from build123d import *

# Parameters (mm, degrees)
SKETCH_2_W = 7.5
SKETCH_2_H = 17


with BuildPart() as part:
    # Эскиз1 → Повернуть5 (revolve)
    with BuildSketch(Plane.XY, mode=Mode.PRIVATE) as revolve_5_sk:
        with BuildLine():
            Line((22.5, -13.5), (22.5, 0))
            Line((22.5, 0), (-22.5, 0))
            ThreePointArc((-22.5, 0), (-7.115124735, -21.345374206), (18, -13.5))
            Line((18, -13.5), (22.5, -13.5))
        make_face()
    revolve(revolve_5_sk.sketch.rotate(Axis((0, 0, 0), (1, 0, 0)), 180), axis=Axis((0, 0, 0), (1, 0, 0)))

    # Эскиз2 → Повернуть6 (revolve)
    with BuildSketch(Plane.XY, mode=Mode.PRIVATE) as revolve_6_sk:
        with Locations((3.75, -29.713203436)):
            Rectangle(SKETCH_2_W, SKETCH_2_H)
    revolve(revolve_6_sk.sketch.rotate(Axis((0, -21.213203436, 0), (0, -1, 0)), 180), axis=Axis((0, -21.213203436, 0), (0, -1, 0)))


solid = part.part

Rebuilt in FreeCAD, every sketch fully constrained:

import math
import FreeCAD as App
import Part
import Sketcher


def add_polygon(sketch, points):
    """Adds a closed chain of lines whose ends are joined by coincident constraints."""
    first, n = sketch.GeometryCount, len(points)
    for a, b in zip(points, points[1:] + points[:1]):
        sketch.addGeometry(Part.LineSegment(App.Vector(*a, 0), App.Vector(*b, 0)), False)
    for i in range(n):
        sketch.addConstraint(Sketcher.Constraint("Coincident", first + i, 2, first + (i + 1) % n, 1))

doc = App.newDocument("Part")
body = doc.addObject("PartDesign::Body", "Body")

# Sketch on XY plane
sketch1 = body.newObject("Sketcher::SketchObject", "Sketch")
sketch1.AttachmentSupport = (doc.getObject("XY_Plane"), [""])
sketch1.MapMode = "FlatFace"
sketch1.addGeometry([
    Part.LineSegment(App.Vector(22.5, -13.5, 0), App.Vector(22.5, 0, 0)),
    Part.LineSegment(App.Vector(22.5, 0, 0), App.Vector(-22.5, 0, 0)),
    Part.ArcOfCircle(Part.Circle(App.Vector(0, 0, 0), App.Vector(0, 0, 1), 22.5), math.radians(180), math.radians(323)),
    Part.LineSegment(App.Vector(18, -13.5, 0), App.Vector(22.5, -13.5, 0)),
], False)
sketch1.addConstraint([
    Sketcher.Constraint("Coincident", 0, 2, 1, 1),
    Sketcher.Constraint("Coincident", 1, 2, 2, 1),
    Sketcher.Constraint("Coincident", 2, 2, 3, 1),
    Sketcher.Constraint("Coincident", 3, 2, 0, 1),
    Sketcher.Constraint("Vertical", 0),
    Sketcher.Constraint("Horizontal", 1),
    Sketcher.Constraint("Horizontal", 3),
    Sketcher.Constraint("Coincident", 2, 3, -1, 1),
    Sketcher.Constraint("Symmetric", 0, 2, 1, 2, -1, 1),
    Sketcher.Constraint("Radius", 2, 22.5),
    Sketcher.Constraint("DistanceX", 3, 1, 3, 2, 4.5),
])
revolution = body.newObject("PartDesign::Revolution", "Revolution")
revolution.Profile = sketch1
revolution.ReferenceAxis = (sketch1, ["H_Axis"])
revolution.Angle = 360

# Sketch on XY plane
sketch2 = body.newObject("Sketcher::SketchObject", "Sketch001")
sketch2.AttachmentSupport = (doc.getObject("XY_Plane"), [""])
sketch2.MapMode = "FlatFace"
add_polygon(sketch2, [(0, -21), (0, -38), (8, -38), (8, -21)])  # lines 0-3
sketch2.addConstraint([
    Sketcher.Constraint("Vertical", 0),
    Sketcher.Constraint("Horizontal", 1),
    Sketcher.Constraint("Vertical", 2),
    Sketcher.Constraint("Horizontal", 3),
    Sketcher.Constraint("PointOnObject", 0, 2, -2),
    Sketcher.Constraint("DistanceY", 0, 2, 0, 1, 17.0),
    Sketcher.Constraint("DistanceX", 1, 1, 1, 2, 7.5),
    Sketcher.Constraint("DistanceY", 0, 2, -1, 1, 38.213203),
])
revolution2 = body.newObject("PartDesign::Revolution", "Revolution001")
revolution2.Profile = sketch2
revolution2.ReferenceAxis = (sketch2, ["V_Axis"])
revolution2.Angle = 360

doc.recompute()
